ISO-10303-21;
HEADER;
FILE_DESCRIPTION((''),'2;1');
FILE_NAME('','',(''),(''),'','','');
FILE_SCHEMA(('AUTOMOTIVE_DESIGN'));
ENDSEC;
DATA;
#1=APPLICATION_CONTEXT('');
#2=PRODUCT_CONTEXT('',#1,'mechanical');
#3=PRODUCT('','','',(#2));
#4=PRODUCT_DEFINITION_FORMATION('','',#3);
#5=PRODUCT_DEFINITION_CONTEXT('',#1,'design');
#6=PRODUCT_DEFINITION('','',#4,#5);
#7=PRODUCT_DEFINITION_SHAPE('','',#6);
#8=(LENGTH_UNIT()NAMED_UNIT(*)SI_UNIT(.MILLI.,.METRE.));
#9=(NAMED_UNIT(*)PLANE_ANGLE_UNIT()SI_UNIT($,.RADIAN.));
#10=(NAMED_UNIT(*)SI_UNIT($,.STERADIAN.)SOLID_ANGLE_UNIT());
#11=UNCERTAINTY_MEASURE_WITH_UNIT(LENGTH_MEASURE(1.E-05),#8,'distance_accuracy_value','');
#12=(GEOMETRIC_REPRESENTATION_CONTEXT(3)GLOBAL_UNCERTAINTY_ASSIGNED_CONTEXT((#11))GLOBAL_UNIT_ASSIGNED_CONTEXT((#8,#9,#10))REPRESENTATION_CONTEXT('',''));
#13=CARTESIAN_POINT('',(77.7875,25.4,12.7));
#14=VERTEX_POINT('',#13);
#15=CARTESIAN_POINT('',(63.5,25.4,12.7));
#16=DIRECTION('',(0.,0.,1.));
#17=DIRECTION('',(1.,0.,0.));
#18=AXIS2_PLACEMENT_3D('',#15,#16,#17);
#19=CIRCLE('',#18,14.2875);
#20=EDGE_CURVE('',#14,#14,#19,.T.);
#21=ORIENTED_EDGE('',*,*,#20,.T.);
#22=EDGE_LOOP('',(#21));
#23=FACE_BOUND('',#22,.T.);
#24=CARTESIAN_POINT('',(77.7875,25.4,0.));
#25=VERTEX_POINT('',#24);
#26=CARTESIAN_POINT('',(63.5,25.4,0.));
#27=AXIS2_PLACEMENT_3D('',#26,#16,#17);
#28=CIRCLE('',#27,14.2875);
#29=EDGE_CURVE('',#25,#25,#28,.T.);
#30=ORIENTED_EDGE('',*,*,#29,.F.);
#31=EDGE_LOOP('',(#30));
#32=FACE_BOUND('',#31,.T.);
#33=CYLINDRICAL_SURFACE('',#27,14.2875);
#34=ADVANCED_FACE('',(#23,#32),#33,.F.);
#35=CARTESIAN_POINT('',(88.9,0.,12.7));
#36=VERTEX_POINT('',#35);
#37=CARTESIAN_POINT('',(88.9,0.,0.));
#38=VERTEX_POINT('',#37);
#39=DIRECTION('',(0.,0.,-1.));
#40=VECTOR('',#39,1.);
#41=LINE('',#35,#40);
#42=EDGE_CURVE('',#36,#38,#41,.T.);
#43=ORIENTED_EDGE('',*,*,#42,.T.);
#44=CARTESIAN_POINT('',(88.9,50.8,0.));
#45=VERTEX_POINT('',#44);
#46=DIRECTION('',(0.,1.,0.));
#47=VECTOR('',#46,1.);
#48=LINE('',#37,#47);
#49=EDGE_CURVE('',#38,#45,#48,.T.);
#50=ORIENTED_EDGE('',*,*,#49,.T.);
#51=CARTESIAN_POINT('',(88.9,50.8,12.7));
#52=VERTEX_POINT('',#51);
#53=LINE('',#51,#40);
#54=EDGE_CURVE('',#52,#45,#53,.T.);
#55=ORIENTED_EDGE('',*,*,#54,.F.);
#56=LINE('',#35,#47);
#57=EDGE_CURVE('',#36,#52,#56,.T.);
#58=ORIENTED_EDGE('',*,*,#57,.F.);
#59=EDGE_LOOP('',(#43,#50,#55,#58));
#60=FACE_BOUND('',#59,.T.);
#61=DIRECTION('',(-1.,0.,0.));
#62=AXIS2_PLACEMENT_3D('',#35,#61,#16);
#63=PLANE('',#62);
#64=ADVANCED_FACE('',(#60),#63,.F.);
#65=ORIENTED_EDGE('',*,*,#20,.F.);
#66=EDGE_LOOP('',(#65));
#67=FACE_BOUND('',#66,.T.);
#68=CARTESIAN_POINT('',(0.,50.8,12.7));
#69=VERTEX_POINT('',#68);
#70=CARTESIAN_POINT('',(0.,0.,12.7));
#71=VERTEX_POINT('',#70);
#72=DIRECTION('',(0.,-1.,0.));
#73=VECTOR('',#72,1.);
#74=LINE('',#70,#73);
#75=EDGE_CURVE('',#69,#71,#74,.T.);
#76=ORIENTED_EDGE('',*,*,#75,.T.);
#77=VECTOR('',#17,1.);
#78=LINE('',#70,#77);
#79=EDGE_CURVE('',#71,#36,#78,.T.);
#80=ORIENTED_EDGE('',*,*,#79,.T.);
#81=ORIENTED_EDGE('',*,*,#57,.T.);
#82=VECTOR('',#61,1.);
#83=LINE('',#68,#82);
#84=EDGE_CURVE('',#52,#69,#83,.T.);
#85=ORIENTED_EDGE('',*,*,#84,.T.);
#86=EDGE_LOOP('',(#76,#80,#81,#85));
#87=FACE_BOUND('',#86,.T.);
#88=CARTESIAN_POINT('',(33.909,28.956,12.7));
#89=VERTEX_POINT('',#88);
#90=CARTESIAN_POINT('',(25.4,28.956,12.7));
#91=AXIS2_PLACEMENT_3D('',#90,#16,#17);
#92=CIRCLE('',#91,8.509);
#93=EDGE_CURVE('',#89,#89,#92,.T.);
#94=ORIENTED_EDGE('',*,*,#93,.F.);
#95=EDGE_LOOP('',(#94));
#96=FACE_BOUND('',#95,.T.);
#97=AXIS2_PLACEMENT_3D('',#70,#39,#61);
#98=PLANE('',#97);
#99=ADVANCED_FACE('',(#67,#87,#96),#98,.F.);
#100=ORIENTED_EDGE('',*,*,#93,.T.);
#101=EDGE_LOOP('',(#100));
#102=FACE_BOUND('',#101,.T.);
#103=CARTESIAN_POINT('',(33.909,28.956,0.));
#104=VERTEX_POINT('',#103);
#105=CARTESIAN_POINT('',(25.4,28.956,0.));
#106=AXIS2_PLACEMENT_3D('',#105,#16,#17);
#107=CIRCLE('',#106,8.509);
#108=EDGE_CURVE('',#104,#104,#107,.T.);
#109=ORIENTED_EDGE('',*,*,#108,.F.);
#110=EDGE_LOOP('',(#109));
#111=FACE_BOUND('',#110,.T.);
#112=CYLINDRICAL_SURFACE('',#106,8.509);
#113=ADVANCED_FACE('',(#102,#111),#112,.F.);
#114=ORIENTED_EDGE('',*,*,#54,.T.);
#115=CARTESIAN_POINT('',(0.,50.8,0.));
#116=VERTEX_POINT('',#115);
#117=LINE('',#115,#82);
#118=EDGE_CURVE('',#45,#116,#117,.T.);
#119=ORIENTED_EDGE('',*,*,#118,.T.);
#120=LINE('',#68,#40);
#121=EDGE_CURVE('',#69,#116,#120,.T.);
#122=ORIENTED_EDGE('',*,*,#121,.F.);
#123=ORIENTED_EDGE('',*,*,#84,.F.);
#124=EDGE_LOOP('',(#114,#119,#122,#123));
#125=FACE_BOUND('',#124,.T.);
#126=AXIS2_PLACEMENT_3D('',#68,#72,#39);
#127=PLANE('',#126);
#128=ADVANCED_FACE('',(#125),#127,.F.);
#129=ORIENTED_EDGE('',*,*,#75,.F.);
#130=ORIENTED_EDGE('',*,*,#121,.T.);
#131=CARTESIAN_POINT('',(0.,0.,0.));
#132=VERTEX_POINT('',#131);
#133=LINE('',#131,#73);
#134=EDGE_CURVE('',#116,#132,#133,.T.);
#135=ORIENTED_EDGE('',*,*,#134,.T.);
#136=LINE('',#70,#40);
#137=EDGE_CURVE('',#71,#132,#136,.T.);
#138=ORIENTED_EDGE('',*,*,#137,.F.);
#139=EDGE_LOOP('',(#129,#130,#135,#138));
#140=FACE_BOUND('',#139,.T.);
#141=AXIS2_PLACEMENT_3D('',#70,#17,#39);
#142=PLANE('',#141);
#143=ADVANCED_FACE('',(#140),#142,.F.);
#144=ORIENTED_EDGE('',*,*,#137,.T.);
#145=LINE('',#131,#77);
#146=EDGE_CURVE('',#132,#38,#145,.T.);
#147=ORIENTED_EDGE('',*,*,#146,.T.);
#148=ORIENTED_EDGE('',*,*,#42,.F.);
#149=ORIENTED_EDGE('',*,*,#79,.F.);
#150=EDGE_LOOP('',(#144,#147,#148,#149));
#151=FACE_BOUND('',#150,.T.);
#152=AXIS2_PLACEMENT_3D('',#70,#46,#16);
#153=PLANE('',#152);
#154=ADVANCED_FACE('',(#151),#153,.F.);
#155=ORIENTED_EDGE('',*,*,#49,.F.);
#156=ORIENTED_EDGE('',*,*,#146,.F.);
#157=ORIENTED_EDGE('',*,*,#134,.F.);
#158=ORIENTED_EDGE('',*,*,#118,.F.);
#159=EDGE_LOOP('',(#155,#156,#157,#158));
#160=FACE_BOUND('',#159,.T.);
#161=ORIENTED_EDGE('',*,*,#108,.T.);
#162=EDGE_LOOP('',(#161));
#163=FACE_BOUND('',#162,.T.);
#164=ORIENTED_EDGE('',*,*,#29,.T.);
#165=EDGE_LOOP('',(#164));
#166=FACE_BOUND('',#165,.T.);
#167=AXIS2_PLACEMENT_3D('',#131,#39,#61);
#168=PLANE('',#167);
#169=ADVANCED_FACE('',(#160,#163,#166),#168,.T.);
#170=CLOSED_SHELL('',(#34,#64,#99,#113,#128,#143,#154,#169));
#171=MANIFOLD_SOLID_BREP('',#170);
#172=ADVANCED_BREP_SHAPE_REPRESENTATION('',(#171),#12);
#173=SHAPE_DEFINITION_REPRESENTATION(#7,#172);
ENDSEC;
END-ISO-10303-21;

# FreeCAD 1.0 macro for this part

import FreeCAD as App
import Part
import Sketcher
from FreeCAD import Vector
Q = App.Units.Quantity

doc = App.newDocument("Part")
body = doc.addObject("PartDesign::Body", "Body")

# Sketch on XY plane
sketch1 = body.newObject("Sketcher::SketchObject", "Sketch")
sketch1.AttachmentSupport = (doc.getObject("XY_Plane"), [""])
sketch1.MapMode = "FlatFace"
sketch1.addGeometry([
    Part.LineSegment(Vector(0, 51, 0), Vector(0, 0, 0)),
    Part.LineSegment(Vector(0, 0, 0), Vector(89, 0, 0)),
    Part.LineSegment(Vector(89, 0, 0), Vector(89, 51, 0)),
    Part.LineSegment(Vector(89, 51, 0), Vector(0, 51, 0)),
], False)
sketch1.addConstraint([
    Sketcher.Constraint("Coincident", 0, 2, 1, 1),
    Sketcher.Constraint("Coincident", 1, 2, 2, 1),
    Sketcher.Constraint("Coincident", 2, 2, 3, 1),
    Sketcher.Constraint("Coincident", 3, 2, 0, 1),
    Sketcher.Constraint("Vertical", 0),
    Sketcher.Constraint("Horizontal", 1),
    Sketcher.Constraint("Vertical", 2),
    Sketcher.Constraint("Horizontal", 3),
    Sketcher.Constraint("Coincident", 0, 2, -1, 1),
    Sketcher.Constraint("DistanceY", 0, 2, 0, 1, Q("2 in")),
    Sketcher.Constraint("DistanceX", 1, 1, 1, 2, Q("3.5 in")),
])
pad1 = body.newObject("PartDesign::Pad", "Pad")
pad1.Profile = sketch1
pad1.Length = Q("0.5 in")

# Sketch on XY plane
sketch2 = body.newObject("Sketcher::SketchObject", "Sketch001")
sketch2.AttachmentSupport = (doc.getObject("XY_Plane"), [""])
sketch2.MapMode = "FlatFace"
sketch2.AttachmentOffset = App.Placement(Vector(0, 0, 0.5 * 25.4), App.Rotation())
sketch2.addGeometry([
    Part.Circle(Vector(64, 25, 0), Vector(0, 0, 1), 14),
    Part.Circle(Vector(25, 29, 0), Vector(0, 0, 1), 9),
], False)
sketch2.addConstraint([
    Sketcher.Constraint("Diameter", 1, Q("0.67 in")),
    Sketcher.Constraint("Diameter", 0, Q("1.125 in")),
    Sketcher.Constraint("DistanceY", -1, 1, 0, 3, Q("1 in")),
    Sketcher.Constraint("DistanceX", -1, 1, 1, 3, Q("1 in")),
    Sketcher.Constraint("DistanceX", -1, 1, 0, 3, Q("2.5 in")),
    Sketcher.Constraint("DistanceY", -1, 1, 1, 3, Q("1.14 in")),
])
pocket1 = body.newObject("PartDesign::Pocket", "Pocket")
pocket1.Profile = sketch2
pocket1.Type = "ThroughAll"

doc.recompute()
